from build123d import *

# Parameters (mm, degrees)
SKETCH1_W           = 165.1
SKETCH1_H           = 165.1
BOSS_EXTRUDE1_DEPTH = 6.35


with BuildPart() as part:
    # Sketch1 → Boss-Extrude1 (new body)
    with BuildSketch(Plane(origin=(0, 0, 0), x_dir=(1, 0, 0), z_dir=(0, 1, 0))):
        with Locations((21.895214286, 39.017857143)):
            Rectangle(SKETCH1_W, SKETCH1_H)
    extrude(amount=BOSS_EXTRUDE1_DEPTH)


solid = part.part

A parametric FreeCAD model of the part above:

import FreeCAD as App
import Part
import Sketcher
Q = App.Units.Quantity


def add_polygon(sketch, points):
    """Adds a closed chain of lines whose ends are joined by coincident constraints."""
    first, n = sketch.GeometryCount, len(points)
    for a, b in zip(points, points[1:] + points[:1]):
        sketch.addGeometry(Part.LineSegment(App.Vector(*a, 0), App.Vector(*b, 0)), False)
    for i in range(n):
        sketch.addConstraint(Sketcher.Constraint("Coincident", first + i, 2, first + (i + 1) % n, 1))

doc = App.newDocument("Part")
body = doc.addObject("PartDesign::Body", "Body")

# Sketch on XZ plane
sketch1 = doc.addObject("Sketcher::SketchObject", "Sketch")
body.addObject(sketch1)
sketch1.AttachmentSupport = (doc.XZ_Plane, [""])
sketch1.MapMode = "FlatFace"
add_polygon(sketch1, [(-61, -122), (-61, 44), (104, 44), (104, -122)])  # lines 0-3
sketch1.addConstraint([
    Sketcher.Constraint("Vertical", 0),
    Sketcher.Constraint("Horizontal", 1),
    Sketcher.Constraint("Vertical", 2),
    Sketcher.Constraint("Horizontal", 3),
    Sketcher.Constraint("Equal", 3, 0),
    Sketcher.Constraint("DistanceX", 1, 1, 1, 2, Q("6.5 in")),
    Sketcher.Constraint("DistanceX", 0, 2, -1, 1, Q("60.654786 mm")),
    Sketcher.Constraint("DistanceY", -1, 1, 0, 2, Q("43.532143 mm")),
])
pad1 = doc.addObject("PartDesign::Pad", "Pad")
body.addObject(pad1)
pad1.Profile = sketch1
pad1.Length = Q("0.25 in")
pad1.Reversed = True

doc.recompute()
